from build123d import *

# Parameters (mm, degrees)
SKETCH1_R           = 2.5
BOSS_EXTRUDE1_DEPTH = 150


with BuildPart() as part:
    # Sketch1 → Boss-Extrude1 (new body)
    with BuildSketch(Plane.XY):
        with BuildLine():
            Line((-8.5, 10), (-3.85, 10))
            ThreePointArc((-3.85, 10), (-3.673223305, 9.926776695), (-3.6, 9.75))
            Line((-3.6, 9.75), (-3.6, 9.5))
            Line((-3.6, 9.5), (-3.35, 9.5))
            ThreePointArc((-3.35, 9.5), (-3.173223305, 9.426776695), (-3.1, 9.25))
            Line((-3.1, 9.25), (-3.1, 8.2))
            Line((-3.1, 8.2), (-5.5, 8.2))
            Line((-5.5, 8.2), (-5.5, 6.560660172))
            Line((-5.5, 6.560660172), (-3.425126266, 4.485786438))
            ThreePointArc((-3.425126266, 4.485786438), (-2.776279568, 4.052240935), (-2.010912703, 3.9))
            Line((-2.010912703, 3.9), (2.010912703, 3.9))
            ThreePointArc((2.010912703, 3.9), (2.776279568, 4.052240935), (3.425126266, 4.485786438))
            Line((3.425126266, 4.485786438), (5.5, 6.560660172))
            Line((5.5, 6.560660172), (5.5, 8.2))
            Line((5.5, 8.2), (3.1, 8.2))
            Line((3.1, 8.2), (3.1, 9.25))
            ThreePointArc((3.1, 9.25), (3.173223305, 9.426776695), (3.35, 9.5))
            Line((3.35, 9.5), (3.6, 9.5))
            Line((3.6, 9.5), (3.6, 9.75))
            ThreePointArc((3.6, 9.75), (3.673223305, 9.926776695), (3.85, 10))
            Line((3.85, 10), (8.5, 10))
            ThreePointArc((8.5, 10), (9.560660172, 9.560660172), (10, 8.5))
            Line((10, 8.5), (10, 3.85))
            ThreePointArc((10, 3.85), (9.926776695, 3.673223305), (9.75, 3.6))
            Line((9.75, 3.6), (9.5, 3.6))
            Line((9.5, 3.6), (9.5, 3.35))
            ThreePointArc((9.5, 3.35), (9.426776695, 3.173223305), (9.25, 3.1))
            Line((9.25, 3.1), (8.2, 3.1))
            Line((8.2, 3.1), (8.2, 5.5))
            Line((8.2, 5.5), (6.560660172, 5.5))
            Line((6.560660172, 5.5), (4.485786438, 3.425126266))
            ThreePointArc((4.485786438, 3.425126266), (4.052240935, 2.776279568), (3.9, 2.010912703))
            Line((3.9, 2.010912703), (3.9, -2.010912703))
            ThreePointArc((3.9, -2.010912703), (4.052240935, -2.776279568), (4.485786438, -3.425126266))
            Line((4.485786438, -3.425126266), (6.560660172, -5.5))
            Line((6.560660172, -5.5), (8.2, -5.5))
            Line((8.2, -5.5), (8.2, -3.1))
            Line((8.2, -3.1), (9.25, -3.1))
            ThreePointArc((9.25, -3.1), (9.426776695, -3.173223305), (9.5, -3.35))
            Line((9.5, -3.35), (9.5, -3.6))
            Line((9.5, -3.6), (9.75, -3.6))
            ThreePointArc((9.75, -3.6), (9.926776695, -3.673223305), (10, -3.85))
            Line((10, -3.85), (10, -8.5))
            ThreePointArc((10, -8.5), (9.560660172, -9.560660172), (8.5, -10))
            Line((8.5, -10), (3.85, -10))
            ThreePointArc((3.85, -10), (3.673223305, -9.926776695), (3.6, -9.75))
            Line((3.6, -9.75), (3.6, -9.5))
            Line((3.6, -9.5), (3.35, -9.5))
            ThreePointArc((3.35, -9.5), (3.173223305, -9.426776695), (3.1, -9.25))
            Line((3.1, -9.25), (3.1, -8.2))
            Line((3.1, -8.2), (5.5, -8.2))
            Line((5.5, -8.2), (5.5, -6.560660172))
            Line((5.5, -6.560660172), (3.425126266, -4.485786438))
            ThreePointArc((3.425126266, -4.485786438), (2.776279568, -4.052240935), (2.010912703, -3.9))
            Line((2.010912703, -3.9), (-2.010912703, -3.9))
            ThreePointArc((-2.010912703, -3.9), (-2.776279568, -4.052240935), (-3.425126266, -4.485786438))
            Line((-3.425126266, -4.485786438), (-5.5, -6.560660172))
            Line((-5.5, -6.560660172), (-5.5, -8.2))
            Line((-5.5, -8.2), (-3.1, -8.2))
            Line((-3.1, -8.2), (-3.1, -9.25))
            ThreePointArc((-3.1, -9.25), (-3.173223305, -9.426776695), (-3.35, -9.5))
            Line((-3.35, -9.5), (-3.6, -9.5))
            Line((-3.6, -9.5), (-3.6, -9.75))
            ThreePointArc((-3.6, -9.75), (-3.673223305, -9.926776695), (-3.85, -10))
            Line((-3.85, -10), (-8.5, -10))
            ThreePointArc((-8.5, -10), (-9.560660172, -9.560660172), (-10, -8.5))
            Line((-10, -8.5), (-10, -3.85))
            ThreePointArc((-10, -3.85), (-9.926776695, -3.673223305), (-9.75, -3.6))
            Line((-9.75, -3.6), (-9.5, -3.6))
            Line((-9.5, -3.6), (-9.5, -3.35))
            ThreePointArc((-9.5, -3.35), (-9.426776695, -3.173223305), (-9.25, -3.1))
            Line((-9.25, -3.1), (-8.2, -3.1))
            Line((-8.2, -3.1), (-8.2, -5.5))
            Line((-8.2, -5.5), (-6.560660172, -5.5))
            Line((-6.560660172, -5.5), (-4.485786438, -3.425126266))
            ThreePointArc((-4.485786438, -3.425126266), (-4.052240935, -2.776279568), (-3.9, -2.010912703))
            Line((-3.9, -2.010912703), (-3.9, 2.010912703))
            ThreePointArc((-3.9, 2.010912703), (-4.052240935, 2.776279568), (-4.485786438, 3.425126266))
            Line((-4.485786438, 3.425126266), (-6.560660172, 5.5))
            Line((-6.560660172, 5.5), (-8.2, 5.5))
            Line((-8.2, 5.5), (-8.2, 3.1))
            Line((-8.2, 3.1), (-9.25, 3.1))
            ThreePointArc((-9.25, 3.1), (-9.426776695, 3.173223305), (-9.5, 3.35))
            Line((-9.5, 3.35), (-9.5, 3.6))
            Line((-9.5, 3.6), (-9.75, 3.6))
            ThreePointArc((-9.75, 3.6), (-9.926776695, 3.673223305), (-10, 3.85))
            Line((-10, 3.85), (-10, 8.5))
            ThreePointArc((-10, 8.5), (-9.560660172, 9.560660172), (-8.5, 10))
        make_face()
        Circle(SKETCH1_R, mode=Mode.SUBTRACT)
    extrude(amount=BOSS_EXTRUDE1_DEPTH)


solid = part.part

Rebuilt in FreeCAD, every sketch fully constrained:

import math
import FreeCAD as App
import Part
import Sketcher

V = App.Vector
Q = App.Units.Quantity

doc = App.newDocument("Part")
body = doc.addObject("PartDesign::Body", "Body")

# Sketch on XY plane
sketch1 = doc.addObject("Sketcher::SketchObject", "Sketch")
body.addObject(sketch1)
sketch1.AttachmentSupport = (doc.XY_Plane, [""])
sketch1.MapMode = "FlatFace"
sketch1.addGeometry(Part.LineSegment(V(-3.85, 10, 0), V(-8.5, 10, 0)), False)
sketch1.addGeometry(Part.ArcOfCircle(Part.Circle(V(-8.5, 8.5, 0), V(0, 0, 1), 1.5), math.radians(90), math.radians(180)), False)
sketch1.addGeometry(Part.LineSegment(V(-10, 8.5, 0), V(-10, 3.85, 0)), False)
sketch1.addGeometry(Part.ArcOfCircle(Part.Circle(V(-9.75, 3.85, 0), V(0, 0, 1), 0.25), math.radians(-180), math.radians(-90)), False)
sketch1.addGeometry(Part.LineSegment(V(-9.75, 3.6, 0), V(-9.5, 3.6, 0)), False)
sketch1.addGeometry(Part.LineSegment(V(-9.5, 3.6, 0), V(-9.5, 3.35, 0)), False)
sketch1.addGeometry(Part.ArcOfCircle(Part.Circle(V(-9.25, 3.35, 0), V(0, 0, 1), 0.25), math.radians(-180), math.radians(-90)), False)
sketch1.addGeometry(Part.LineSegment(V(-9.25, 3.1, 0), V(-8.2, 3.1, 0)), False)
sketch1.addGeometry(Part.LineSegment(V(-8.2, 3.1, 0), V(-8.2, 5.5, 0)), False)
sketch1.addGeometry(Part.LineSegment(V(-8.2, 5.5, 0), V(-6.56066, 5.5, 0)), False)
sketch1.addGeometry(Part.LineSegment(V(-6.56066, 5.5, 0), V(-4.485786, 3.425126, 0)), False)
sketch1.addGeometry(Part.ArcOfCircle(Part.Circle(V(-5.9, 2.010913, 0), V(0, 0, 1), 2), math.radians(0), math.radians(45)), False)
sketch1.addGeometry(Part.LineSegment(V(-3.9, 2.010913, 0), V(-3.9, -2.010913, 0)), False)
sketch1.addGeometry(Part.ArcOfCircle(Part.Circle(V(-5.9, -2.010913, 0), V(0, 0, 1), 2), math.radians(-45), math.radians(0)), False)
sketch1.addGeometry(Part.LineSegment(V(-4.485786, -3.425126, 0), V(-6.56066, -5.5, 0)), False)
sketch1.addGeometry(Part.LineSegment(V(-6.56066, -5.5, 0), V(-8.2, -5.5, 0)), False)
sketch1.addGeometry(Part.LineSegment(V(-8.2, -5.5, 0), V(-8.2, -3.1, 0)), False)
sketch1.addGeometry(Part.LineSegment(V(-8.2, -3.1, 0), V(-9.25, -3.1, 0)), False)
sketch1.addGeometry(Part.ArcOfCircle(Part.Circle(V(-9.25, -3.35, 0), V(0, 0, 1), 0.25), math.radians(90), math.radians(180)), False)
sketch1.addGeometry(Part.LineSegment(V(-9.5, -3.35, 0), V(-9.5, -3.6, 0)), False)
sketch1.addGeometry(Part.LineSegment(V(-9.5, -3.6, 0), V(-9.75, -3.6, 0)), False)
sketch1.addGeometry(Part.ArcOfCircle(Part.Circle(V(-9.75, -3.85, 0), V(0, 0, 1), 0.25), math.radians(90), math.radians(180)), False)
sketch1.addGeometry(Part.LineSegment(V(-10, -3.85, 0), V(-10, -8.5, 0)), False)
sketch1.addGeometry(Part.ArcOfCircle(Part.Circle(V(-8.5, -8.5, 0), V(0, 0, 1), 1.5), math.radians(180), math.radians(270)), False)
sketch1.addGeometry(Part.LineSegment(V(-8.5, -10, 0), V(-3.85, -10, 0)), False)
sketch1.addGeometry(Part.ArcOfCircle(Part.Circle(V(-3.85, -9.75, 0), V(0, 0, 1), 0.25), math.radians(-90), math.radians(0)), False)
sketch1.addGeometry(Part.LineSegment(V(-3.6, -9.75, 0), V(-3.6, -9.5, 0)), False)
sketch1.addGeometry(Part.LineSegment(V(-3.6, -9.5, 0), V(-3.35, -9.5, 0)), False)
sketch1.addGeometry(Part.ArcOfCircle(Part.Circle(V(-3.35, -9.25, 0), V(0, 0, 1), 0.25), math.radians(-90), math.radians(0)), False)
sketch1.addGeometry(Part.LineSegment(V(-3.1, -9.25, 0), V(-3.1, -8.2, 0)), False)
sketch1.addGeometry(Part.LineSegment(V(-3.1, -8.2, 0), V(-5.5, -8.2, 0)), False)
sketch1.addGeometry(Part.LineSegment(V(-5.5, -8.2, 0), V(-5.5, -6.56066, 0)), False)
sketch1.addGeometry(Part.LineSegment(V(-5.5, -6.56066, 0), V(-3.425126, -4.485786, 0)), False)
sketch1.addGeometry(Part.ArcOfCircle(Part.Circle(V(-2.010913, -5.9, 0), V(0, 0, 1), 2), math.radians(90), math.radians(135)), False)
sketch1.addGeometry(Part.LineSegment(V(-2.010913, -3.9, 0), V(2.010913, -3.9, 0)), False)
sketch1.addGeometry(Part.ArcOfCircle(Part.Circle(V(2.010913, -5.9, 0), V(0, 0, 1), 2), math.radians(45), math.radians(90)), False)
sketch1.addGeometry(Part.LineSegment(V(3.425126, -4.485786, 0), V(5.5, -6.56066, 0)), False)
sketch1.addGeometry(Part.LineSegment(V(5.5, -6.56066, 0), V(5.5, -8.2, 0)), False)
sketch1.addGeometry(Part.LineSegment(V(5.5, -8.2, 0), V(3.1, -8.2, 0)), False)
sketch1.addGeometry(Part.LineSegment(V(3.1, -8.2, 0), V(3.1, -9.25, 0)), False)
sketch1.addGeometry(Part.ArcOfCircle(Part.Circle(V(3.35, -9.25, 0), V(0, 0, 1), 0.25), math.radians(-180), math.radians(-90)), False)
sketch1.addGeometry(Part.LineSegment(V(3.35, -9.5, 0), V(3.6, -9.5, 0)), False)
sketch1.addGeometry(Part.LineSegment(V(3.6, -9.5, 0), V(3.6, -9.75, 0)), False)
sketch1.addGeometry(Part.ArcOfCircle(Part.Circle(V(3.85, -9.75, 0), V(0, 0, 1), 0.25), math.radians(-180), math.radians(-90)), False)
sketch1.addGeometry(Part.LineSegment(V(3.85, -10, 0), V(8.5, -10, 0)), False)
sketch1.addGeometry(Part.ArcOfCircle(Part.Circle(V(8.5, -8.5, 0), V(0, 0, 1), 1.5), math.radians(-90), math.radians(0)), False)
sketch1.addGeometry(Part.LineSegment(V(10, -8.5, 0), V(10, -3.85, 0)), False)
sketch1.addGeometry(Part.ArcOfCircle(Part.Circle(V(9.75, -3.85, 0), V(0, 0, 1), 0.25), math.radians(0), math.radians(90)), False)
sketch1.addGeometry(Part.LineSegment(V(9.75, -3.6, 0), V(9.5, -3.6, 0)), False)
sketch1.addGeometry(Part.LineSegment(V(9.5, -3.6, 0), V(9.5, -3.35, 0)), False)
sketch1.addGeometry(Part.ArcOfCircle(Part.Circle(V(9.25, -3.35, 0), V(0, 0, 1), 0.25), math.radians(0), math.radians(90)), False)
sketch1.addGeometry(Part.LineSegment(V(9.25, -3.1, 0), V(8.2, -3.1, 0)), False)
sketch1.addGeometry(Part.LineSegment(V(8.2, -3.1, 0), V(8.2, -5.5, 0)), False)
sketch1.addGeometry(Part.LineSegment(V(8.2, -5.5, 0), V(6.56066, -5.5, 0)), False)
sketch1.addGeometry(Part.LineSegment(V(6.56066, -5.5, 0), V(4.485786, -3.425126, 0)), False)
sketch1.addGeometry(Part.ArcOfCircle(Part.Circle(V(5.9, -2.010913, 0), V(0, 0, 1), 2), math.radians(180), math.radians(225)), False)
sketch1.addGeometry(Part.LineSegment(V(3.9, -2.010913, 0), V(3.9, 2.010913, 0)), False)
sketch1.addGeometry(Part.ArcOfCircle(Part.Circle(V(5.9, 2.010913, 0), V(0, 0, 1), 2), math.radians(135), math.radians(180)), False)
sketch1.addGeometry(Part.LineSegment(V(4.485786, 3.425126, 0), V(6.56066, 5.5, 0)), False)
sketch1.addGeometry(Part.LineSegment(V(6.56066, 5.5, 0), V(8.2, 5.5, 0)), False)
sketch1.addGeometry(Part.LineSegment(V(8.2, 5.5, 0), V(8.2, 3.1, 0)), False)
sketch1.addGeometry(Part.LineSegment(V(8.2, 3.1, 0), V(9.25, 3.1, 0)), False)
sketch1.addGeometry(Part.ArcOfCircle(Part.Circle(V(9.25, 3.35, 0), V(0, 0, 1), 0.25), math.radians(-90), math.radians(0)), False)
sketch1.addGeometry(Part.LineSegment(V(9.5, 3.35, 0), V(9.5, 3.6, 0)), False)
sketch1.addGeometry(Part.LineSegment(V(9.5, 3.6, 0), V(9.75, 3.6, 0)), False)
sketch1.addGeometry(Part.ArcOfCircle(Part.Circle(V(9.75, 3.85, 0), V(0, 0, 1), 0.25), math.radians(-90), math.radians(0)), False)
sketch1.addGeometry(Part.LineSegment(V(10, 3.85, 0), V(10, 8.5, 0)), False)
sketch1.addGeometry(Part.ArcOfCircle(Part.Circle(V(8.5, 8.5, 0), V(0, 0, 1), 1.5), math.radians(0), math.radians(90)), False)
sketch1.addGeometry(Part.LineSegment(V(8.5, 10, 0), V(3.85, 10, 0)), False)
sketch1.addGeometry(Part.ArcOfCircle(Part.Circle(V(3.85, 9.75, 0), V(0, 0, 1), 0.25), math.radians(90), math.radians(180)), False)
sketch1.addGeometry(Part.LineSegment(V(3.6, 9.75, 0), V(3.6, 9.5, 0)), False)
sketch1.addGeometry(Part.LineSegment(V(3.6, 9.5, 0), V(3.35, 9.5, 0)), False)
sketch1.addGeometry(Part.ArcOfCircle(Part.Circle(V(3.35, 9.25, 0), V(0, 0, 1), 0.25), math.radians(90), math.radians(180)), False)
sketch1.addGeometry(Part.LineSegment(V(3.1, 9.25, 0), V(3.1, 8.2, 0)), False)
sketch1.addGeometry(Part.LineSegment(V(3.1, 8.2, 0), V(5.5, 8.2, 0)), False)
sketch1.addGeometry(Part.LineSegment(V(5.5, 8.2, 0), V(5.5, 6.56066, 0)), False)
sketch1.addGeometry(Part.LineSegment(V(5.5, 6.56066, 0), V(3.425126, 4.485786, 0)), False)
sketch1.addGeometry(Part.ArcOfCircle(Part.Circle(V(2.010913, 5.9, 0), V(0, 0, 1), 2), math.radians(-90), math.radians(-45)), False)
sketch1.addGeometry(Part.LineSegment(V(2.010913, 3.9, 0), V(-2.010913, 3.9, 0)), False)
sketch1.addGeometry(Part.ArcOfCircle(Part.Circle(V(-2.010913, 5.9, 0), V(0, 0, 1), 2), math.radians(-135), math.radians(-90)), False)
sketch1.addGeometry(Part.LineSegment(V(-3.425126, 4.485786, 0), V(-5.5, 6.56066, 0)), False)
sketch1.addGeometry(Part.LineSegment(V(-5.5, 6.56066, 0), V(-5.5, 8.2, 0)), False)
sketch1.addGeometry(Part.LineSegment(V(-5.5, 8.2, 0), V(-3.1, 8.2, 0)), False)
sketch1.addGeometry(Part.LineSegment(V(-3.1, 8.2, 0), V(-3.1, 9.25, 0)), False)
sketch1.addGeometry(Part.ArcOfCircle(Part.Circle(V(-3.35, 9.25, 0), V(0, 0, 1), 0.25), math.radians(0), math.radians(90)), False)
sketch1.addGeometry(Part.LineSegment(V(-3.35, 9.5, 0), V(-3.6, 9.5, 0)), False)
sketch1.addGeometry(Part.LineSegment(V(-3.6, 9.5, 0), V(-3.6, 9.75, 0)), False)
sketch1.addGeometry(Part.ArcOfCircle(Part.Circle(V(-3.85, 9.75, 0), V(0, 0, 1), 0.25), math.radians(0), math.radians(90)), False)
sketch1.addGeometry(Part.Circle(V(0, 0, 0), V(0, 0, 1), 2.5), False)
sketch1.addConstraint(Sketcher.Constraint("Tangent", 0, 2, 1, 1))
sketch1.addConstraint(Sketcher.Constraint("Tangent", 1, 2, 2, 1))
sketch1.addConstraint(Sketcher.Constraint("Tangent", 2, 2, 3, 1))
sketch1.addConstraint(Sketcher.Constraint("Tangent", 3, 2, 4, 1))
sketch1.addConstraint(Sketcher.Constraint("Coincident", 4, 2, 5, 1))
sketch1.addConstraint(Sketcher.Constraint("Tangent", 5, 2, 6, 1))
sketch1.addConstraint(Sketcher.Constraint("Tangent", 6, 2, 7, 1))
sketch1.addConstraint(Sketcher.Constraint("Coincident", 7, 2, 8, 1))
sketch1.addConstraint(Sketcher.Constraint("Coincident", 8, 2, 9, 1))
sketch1.addConstraint(Sketcher.Constraint("Coincident", 9, 2, 10, 1))
sketch1.addConstraint(Sketcher.Constraint("Tangent", 10, 2, 11, 2))
sketch1.addConstraint(Sketcher.Constraint("Tangent", 11, 1, 12, 1))
sketch1.addConstraint(Sketcher.Constraint("Tangent", 12, 2, 13, 2))
sketch1.addConstraint(Sketcher.Constraint("Tangent", 13, 1, 14, 1))
sketch1.addConstraint(Sketcher.Constraint("Coincident", 14, 2, 15, 1))
sketch1.addConstraint(Sketcher.Constraint("Coincident", 15, 2, 16, 1))
sketch1.addConstraint(Sketcher.Constraint("Coincident", 16, 2, 17, 1))
sketch1.addConstraint(Sketcher.Constraint("Tangent", 17, 2, 18, 1))
sketch1.addConstraint(Sketcher.Constraint("Tangent", 18, 2, 19, 1))
sketch1.addConstraint(Sketcher.Constraint("Coincident", 19, 2, 20, 1))
sketch1.addConstraint(Sketcher.Constraint("Tangent", 20, 2, 21, 1))
sketch1.addConstraint(Sketcher.Constraint("Tangent", 21, 2, 22, 1))
sketch1.addConstraint(Sketcher.Constraint("Tangent", 22, 2, 23, 1))
sketch1.addConstraint(Sketcher.Constraint("Tangent", 23, 2, 24, 1))
sketch1.addConstraint(Sketcher.Constraint("Tangent", 24, 2, 25, 1))
sketch1.addConstraint(Sketcher.Constraint("Tangent", 25, 2, 26, 1))
sketch1.addConstraint(Sketcher.Constraint("Coincident", 26, 2, 27, 1))
sketch1.addConstraint(Sketcher.Constraint("Tangent", 27, 2, 28, 1))
sketch1.addConstraint(Sketcher.Constraint("Tangent", 28, 2, 29, 1))
sketch1.addConstraint(Sketcher.Constraint("Coincident", 29, 2, 30, 1))
sketch1.addConstraint(Sketcher.Constraint("Coincident", 30, 2, 31, 1))
sketch1.addConstraint(Sketcher.Constraint("Coincident", 31, 2, 32, 1))
sketch1.addConstraint(Sketcher.Constraint("Tangent", 32, 2, 33, 2))
sketch1.addConstraint(Sketcher.Constraint("Tangent", 33, 1, 34, 1))
sketch1.addConstraint(Sketcher.Constraint("Tangent", 34, 2, 35, 2))
sketch1.addConstraint(Sketcher.Constraint("Tangent", 35, 1, 36, 1))
sketch1.addConstraint(Sketcher.Constraint("Coincident", 36, 2, 37, 1))
sketch1.addConstraint(Sketcher.Constraint("Coincident", 37, 2, 38, 1))
sketch1.addConstraint(Sketcher.Constraint("Coincident", 38, 2, 39, 1))
sketch1.addConstraint(Sketcher.Constraint("Tangent", 39, 2, 40, 1))
sketch1.addConstraint(Sketcher.Constraint("Tangent", 40, 2, 41, 1))
sketch1.addConstraint(Sketcher.Constraint("Coincident", 41, 2, 42, 1))
sketch1.addConstraint(Sketcher.Constraint("Tangent", 42, 2, 43, 1))
sketch1.addConstraint(Sketcher.Constraint("Tangent", 43, 2, 44, 1))
sketch1.addConstraint(Sketcher.Constraint("Tangent", 44, 2, 45, 1))
sketch1.addConstraint(Sketcher.Constraint("Tangent", 45, 2, 46, 1))
sketch1.addConstraint(Sketcher.Constraint("Tangent", 46, 2, 47, 1))
sketch1.addConstraint(Sketcher.Constraint("Tangent", 47, 2, 48, 1))
sketch1.addConstraint(Sketcher.Constraint("Coincident", 48, 2, 49, 1))
sketch1.addConstraint(Sketcher.Constraint("Tangent", 49, 2, 50, 1))
sketch1.addConstraint(Sketcher.Constraint("Tangent", 50, 2, 51, 1))
sketch1.addConstraint(Sketcher.Constraint("Coincident", 51, 2, 52, 1))
sketch1.addConstraint(Sketcher.Constraint("Coincident", 52, 2, 53, 1))
sketch1.addConstraint(Sketcher.Constraint("Coincident", 53, 2, 54, 1))
sketch1.addConstraint(Sketcher.Constraint("Tangent", 54, 2, 55, 2))
sketch1.addConstraint(Sketcher.Constraint("Tangent", 55, 1, 56, 1))
sketch1.addConstraint(Sketcher.Constraint("Tangent", 56, 2, 57, 2))
sketch1.addConstraint(Sketcher.Constraint("Tangent", 57, 1, 58, 1))
sketch1.addConstraint(Sketcher.Constraint("Coincident", 58, 2, 59, 1))
sketch1.addConstraint(Sketcher.Constraint("Coincident", 59, 2, 60, 1))
sketch1.addConstraint(Sketcher.Constraint("Coincident", 60, 2, 61, 1))
sketch1.addConstraint(Sketcher.Constraint("Tangent", 61, 2, 62, 1))
sketch1.addConstraint(Sketcher.Constraint("Tangent", 62, 2, 63, 1))
sketch1.addConstraint(Sketcher.Constraint("Coincident", 63, 2, 64, 1))
sketch1.addConstraint(Sketcher.Constraint("Tangent", 64, 2, 65, 1))
sketch1.addConstraint(Sketcher.Constraint("Tangent", 65, 2, 66, 1))
sketch1.addConstraint(Sketcher.Constraint("Tangent", 66, 2, 67, 1))
sketch1.addConstraint(Sketcher.Constraint("Tangent", 67, 2, 68, 1))
sketch1.addConstraint(Sketcher.Constraint("Tangent", 68, 2, 69, 1))
sketch1.addConstraint(Sketcher.Constraint("Tangent", 69, 2, 70, 1))
sketch1.addConstraint(Sketcher.Constraint("Coincident", 70, 2, 71, 1))
sketch1.addConstraint(Sketcher.Constraint("Tangent", 71, 2, 72, 1))
sketch1.addConstraint(Sketcher.Constraint("Tangent", 72, 2, 73, 1))
sketch1.addConstraint(Sketcher.Constraint("Coincident", 73, 2, 74, 1))
sketch1.addConstraint(Sketcher.Constraint("Coincident", 74, 2, 75, 1))
sketch1.addConstraint(Sketcher.Constraint("Coincident", 75, 2, 76, 1))
sketch1.addConstraint(Sketcher.Constraint("Tangent", 76, 2, 77, 2))
sketch1.addConstraint(Sketcher.Constraint("Tangent", 77, 1, 78, 1))
sketch1.addConstraint(Sketcher.Constraint("Tangent", 78, 2, 79, 2))
sketch1.addConstraint(Sketcher.Constraint("Tangent", 79, 1, 80, 1))
sketch1.addConstraint(Sketcher.Constraint("Coincident", 80, 2, 81, 1))
sketch1.addConstraint(Sketcher.Constraint("Coincident", 81, 2, 82, 1))
sketch1.addConstraint(Sketcher.Constraint("Coincident", 82, 2, 83, 1))
sketch1.addConstraint(Sketcher.Constraint("Tangent", 83, 2, 84, 1))
sketch1.addConstraint(Sketcher.Constraint("Tangent", 84, 2, 85, 1))
sketch1.addConstraint(Sketcher.Constraint("Coincident", 85, 2, 86, 1))
sketch1.addConstraint(Sketcher.Constraint("Tangent", 86, 2, 87, 1))
sketch1.addConstraint(Sketcher.Constraint("Tangent", 87, 2, 0, 1))
sketch1.addConstraint(Sketcher.Constraint("Horizontal", 0))
sketch1.addConstraint(Sketcher.Constraint("Vertical", 2))
sketch1.addConstraint(Sketcher.Constraint("Horizontal", 4))
sketch1.addConstraint(Sketcher.Constraint("Vertical", 5))
sketch1.addConstraint(Sketcher.Constraint("Horizontal", 7))
sketch1.addConstraint(Sketcher.Constraint("Vertical", 8))
sketch1.addConstraint(Sketcher.Constraint("Horizontal", 9))
sketch1.addConstraint(Sketcher.Constraint("Vertical", 12))
sketch1.addConstraint(Sketcher.Constraint("Horizontal", 15))
sketch1.addConstraint(Sketcher.Constraint("Vertical", 16))
sketch1.addConstraint(Sketcher.Constraint("Horizontal", 17))
sketch1.addConstraint(Sketcher.Constraint("Vertical", 19))
sketch1.addConstraint(Sketcher.Constraint("Horizontal", 20))
sketch1.addConstraint(Sketcher.Constraint("Vertical", 22))
sketch1.addConstraint(Sketcher.Constraint("Horizontal", 24))
sketch1.addConstraint(Sketcher.Constraint("Vertical", 26))
sketch1.addConstraint(Sketcher.Constraint("Horizontal", 27))
sketch1.addConstraint(Sketcher.Constraint("Vertical", 29))
sketch1.addConstraint(Sketcher.Constraint("Horizontal", 30))
sketch1.addConstraint(Sketcher.Constraint("Vertical", 31))
sketch1.addConstraint(Sketcher.Constraint("Horizontal", 34))
sketch1.addConstraint(Sketcher.Constraint("Vertical", 37))
sketch1.addConstraint(Sketcher.Constraint("Horizontal", 38))
sketch1.addConstraint(Sketcher.Constraint("Vertical", 39))
sketch1.addConstraint(Sketcher.Constraint("Horizontal", 41))
sketch1.addConstraint(Sketcher.Constraint("Vertical", 42))
sketch1.addConstraint(Sketcher.Constraint("Horizontal", 44))
sketch1.addConstraint(Sketcher.Constraint("Vertical", 46))
sketch1.addConstraint(Sketcher.Constraint("Horizontal", 48))
sketch1.addConstraint(Sketcher.Constraint("Vertical", 49))
sketch1.addConstraint(Sketcher.Constraint("Horizontal", 51))
sketch1.addConstraint(Sketcher.Constraint("Vertical", 52))
sketch1.addConstraint(Sketcher.Constraint("Horizontal", 53))
sketch1.addConstraint(Sketcher.Constraint("Vertical", 56))
sketch1.addConstraint(Sketcher.Constraint("Horizontal", 59))
sketch1.addConstraint(Sketcher.Constraint("Vertical", 60))
sketch1.addConstraint(Sketcher.Constraint("Horizontal", 61))
sketch1.addConstraint(Sketcher.Constraint("Vertical", 63))
sketch1.addConstraint(Sketcher.Constraint("Horizontal", 64))
sketch1.addConstraint(Sketcher.Constraint("Vertical", 66))
sketch1.addConstraint(Sketcher.Constraint("Horizontal", 68))
sketch1.addConstraint(Sketcher.Constraint("Vertical", 70))
sketch1.addConstraint(Sketcher.Constraint("Horizontal", 71))
sketch1.addConstraint(Sketcher.Constraint("Vertical", 73))
sketch1.addConstraint(Sketcher.Constraint("Horizontal", 74))
sketch1.addConstraint(Sketcher.Constraint("Vertical", 75))
sketch1.addConstraint(Sketcher.Constraint("Horizontal", 78))
sketch1.addConstraint(Sketcher.Constraint("Vertical", 81))
sketch1.addConstraint(Sketcher.Constraint("Horizontal", 82))
sketch1.addConstraint(Sketcher.Constraint("Vertical", 83))
sketch1.addConstraint(Sketcher.Constraint("Horizontal", 85))
sketch1.addConstraint(Sketcher.Constraint("Vertical", 86))
sketch1.addConstraint(Sketcher.Constraint("Coincident", 88, 3, -1, 1))
sketch1.addConstraint(Sketcher.Constraint("Equal", 3, 6))
sketch1.addConstraint(Sketcher.Constraint("Equal", 11, 13))
sketch1.addConstraint(Sketcher.Constraint("Equal", 6, 18))
sketch1.addConstraint(Sketcher.Constraint("Equal", 18, 21))
sketch1.addConstraint(Sketcher.Constraint("Equal", 1, 23))
sketch1.addConstraint(Sketcher.Constraint("Equal", 21, 25))
sketch1.addConstraint(Sketcher.Constraint("Equal", 25, 28))
sketch1.addConstraint(Sketcher.Constraint("Equal", 13, 33))
sketch1.addConstraint(Sketcher.Constraint("Equal", 33, 35))
sketch1.addConstraint(Sketcher.Constraint("Equal", 28, 40))
sketch1.addConstraint(Sketcher.Constraint("Equal", 40, 43))
sketch1.addConstraint(Sketcher.Constraint("Equal", 23, 45))
sketch1.addConstraint(Sketcher.Constraint("Equal", 43, 47))
sketch1.addConstraint(Sketcher.Constraint("Equal", 47, 50))
sketch1.addConstraint(Sketcher.Constraint("Equal", 35, 55))
sketch1.addConstraint(Sketcher.Constraint("Equal", 55, 57))
sketch1.addConstraint(Sketcher.Constraint("Equal", 50, 62))
sketch1.addConstraint(Sketcher.Constraint("Equal", 62, 65))
sketch1.addConstraint(Sketcher.Constraint("Equal", 45, 67))
sketch1.addConstraint(Sketcher.Constraint("Equal", 65, 69))
sketch1.addConstraint(Sketcher.Constraint("Equal", 69, 72))
sketch1.addConstraint(Sketcher.Constraint("Equal", 57, 77))
sketch1.addConstraint(Sketcher.Constraint("Equal", 77, 79))
sketch1.addConstraint(Sketcher.Constraint("Equal", 72, 84))
sketch1.addConstraint(Sketcher.Constraint("Equal", 84, 87))
sketch1.addConstraint(Sketcher.Constraint("Symmetric", 1, 3, 45, 3, -1, 1))
sketch1.addConstraint(Sketcher.Constraint("Symmetric", 6, 3, 50, 3, -1, 1))
sketch1.addConstraint(Sketcher.Constraint("Symmetric", 11, 3, 55, 3, -1, 1))
sketch1.addConstraint(Sketcher.Constraint("Symmetric", 18, 3, 62, 3, -1, 1))
sketch1.addConstraint(Sketcher.Constraint("Symmetric", 21, 3, 65, 3, -1, 1))
sketch1.addConstraint(Sketcher.Constraint("Symmetric", 25, 3, 69, 3, -1, 1))
sketch1.addConstraint(Sketcher.Constraint("Symmetric", 28, 3, 72, 3, -1, 1))
sketch1.addConstraint(Sketcher.Constraint("Symmetric", 33, 3, 77, 3, -1, 1))
sketch1.addConstraint(Sketcher.Constraint("Symmetric", 40, 3, 84, 3, -1, 1))
sketch1.addConstraint(Sketcher.Constraint("Symmetric", 8, 2, 52, 2, -1, 1))
sketch1.addConstraint(Sketcher.Constraint("Symmetric", 13, 1, 57, 1, -1, 1))
sketch1.addConstraint(Sketcher.Constraint("Symmetric", 15, 2, 59, 2, -1, 1))
sketch1.addConstraint(Sketcher.Constraint("Symmetric", 30, 2, 74, 2, -1, 1))
sketch1.addConstraint(Sketcher.Constraint("Symmetric", 35, 1, 79, 1, -1, 1))
sketch1.addConstraint(Sketcher.Constraint("Symmetric", 37, 2, 81, 2, -1, 1))
sketch1.addConstraint(Sketcher.Constraint("Symmetric", 28, 3, 40, 3, -2))
sketch1.addConstraint(Sketcher.Constraint("Symmetric", 25, 3, 43, 3, -2))
sketch1.addConstraint(Sketcher.Constraint("Symmetric", 21, 3, 47, 3, -2))
sketch1.addConstraint(Sketcher.Constraint("Symmetric", 18, 3, 50, 3, -2))
sketch1.addConstraint(Sketcher.Constraint("Symmetric", 32, 2, 35, 1, -2))
sketch1.addConstraint(Sketcher.Constraint("Symmetric", 30, 2, 37, 2, -2))
sketch1.addConstraint(Sketcher.Constraint("Symmetric", 15, 2, 52, 2, -2))
sketch1.addConstraint(Sketcher.Constraint("Symmetric", 13, 1, 54, 2, -2))
sketch1.addConstraint(Sketcher.Constraint("Perpendicular", 10, 14))
sketch1.addConstraint(Sketcher.Constraint("Parallel", 14, 32))
sketch1.addConstraint(Sketcher.Constraint("Perpendicular", 32, 36))
sketch1.addConstraint(Sketcher.Constraint("Parallel", 58, 76))
sketch1.addConstraint(Sketcher.Constraint("Horizontal", 3, 3, 65, 3))
sketch1.addConstraint(Sketcher.Constraint("Vertical", 25, 3, 87, 3))
sketch1.addConstraint(Sketcher.Constraint("Equal", 20, 27))
sketch1.addConstraint(Sketcher.Constraint("Equal", 68, 2))
sketch1.addConstraint(Sketcher.Constraint("Equal", 85, 5))
sketch1.addConstraint(Sketcher.Constraint("Equal", 82, 8))
sketch1.addConstraint(Sketcher.Constraint("Equal", 78, 12))
sketch1.addConstraint(Sketcher.Constraint("Equal", 19, 26))
sketch1.addConstraint(Sketcher.Constraint("Equal", 61, 29))
sketch1.addConstraint(Sketcher.Constraint("Equal", 59, 31))
sketch1.addConstraint(Sketcher.Constraint("Equal", 14, 32))
sketch1.addConstraint(Sketcher.Constraint("Diameter", 88, Q("5 mm")))
sketch1.addConstraint(Sketcher.Constraint("Radius", 11, Q("2 mm")))
sketch1.addConstraint(Sketcher.Constraint("Radius", 1, Q("1.5 mm")))
sketch1.addConstraint(Sketcher.Constraint("Radius", 3, Q("0.25 mm")))
sketch1.addConstraint(Sketcher.Constraint("DistanceX", 30, 2, 30, 1, Q("2.4 mm")))
sketch1.addConstraint(Sketcher.Constraint("DistanceY", -1, 1, 0, 2, Q("10 mm")))
sketch1.addConstraint(Sketcher.Constraint("DistanceX", 0, 2, 0, 1, Q("4.65 mm")))
sketch1.addConstraint(Sketcher.Constraint("DistanceX", 4, 1, 4, 2, Q("0.25 mm")))
sketch1.addConstraint(Sketcher.Constraint("DistanceX", 7, 1, 7, 2, Q("1.05 mm")))
sketch1.addConstraint(Sketcher.Constraint("DistanceX", 11, 3, -1, 1, Q("5.9 mm")))
sketch1.addConstraint(Sketcher.Constraint("DistanceX", 9, 1, 9, 2, Q("1.63934 mm")))
pad1 = doc.addObject("PartDesign::Pad", "Pad")
body.addObject(pad1)
pad1.Profile = sketch1
pad1.Length = 150

doc.recompute()
